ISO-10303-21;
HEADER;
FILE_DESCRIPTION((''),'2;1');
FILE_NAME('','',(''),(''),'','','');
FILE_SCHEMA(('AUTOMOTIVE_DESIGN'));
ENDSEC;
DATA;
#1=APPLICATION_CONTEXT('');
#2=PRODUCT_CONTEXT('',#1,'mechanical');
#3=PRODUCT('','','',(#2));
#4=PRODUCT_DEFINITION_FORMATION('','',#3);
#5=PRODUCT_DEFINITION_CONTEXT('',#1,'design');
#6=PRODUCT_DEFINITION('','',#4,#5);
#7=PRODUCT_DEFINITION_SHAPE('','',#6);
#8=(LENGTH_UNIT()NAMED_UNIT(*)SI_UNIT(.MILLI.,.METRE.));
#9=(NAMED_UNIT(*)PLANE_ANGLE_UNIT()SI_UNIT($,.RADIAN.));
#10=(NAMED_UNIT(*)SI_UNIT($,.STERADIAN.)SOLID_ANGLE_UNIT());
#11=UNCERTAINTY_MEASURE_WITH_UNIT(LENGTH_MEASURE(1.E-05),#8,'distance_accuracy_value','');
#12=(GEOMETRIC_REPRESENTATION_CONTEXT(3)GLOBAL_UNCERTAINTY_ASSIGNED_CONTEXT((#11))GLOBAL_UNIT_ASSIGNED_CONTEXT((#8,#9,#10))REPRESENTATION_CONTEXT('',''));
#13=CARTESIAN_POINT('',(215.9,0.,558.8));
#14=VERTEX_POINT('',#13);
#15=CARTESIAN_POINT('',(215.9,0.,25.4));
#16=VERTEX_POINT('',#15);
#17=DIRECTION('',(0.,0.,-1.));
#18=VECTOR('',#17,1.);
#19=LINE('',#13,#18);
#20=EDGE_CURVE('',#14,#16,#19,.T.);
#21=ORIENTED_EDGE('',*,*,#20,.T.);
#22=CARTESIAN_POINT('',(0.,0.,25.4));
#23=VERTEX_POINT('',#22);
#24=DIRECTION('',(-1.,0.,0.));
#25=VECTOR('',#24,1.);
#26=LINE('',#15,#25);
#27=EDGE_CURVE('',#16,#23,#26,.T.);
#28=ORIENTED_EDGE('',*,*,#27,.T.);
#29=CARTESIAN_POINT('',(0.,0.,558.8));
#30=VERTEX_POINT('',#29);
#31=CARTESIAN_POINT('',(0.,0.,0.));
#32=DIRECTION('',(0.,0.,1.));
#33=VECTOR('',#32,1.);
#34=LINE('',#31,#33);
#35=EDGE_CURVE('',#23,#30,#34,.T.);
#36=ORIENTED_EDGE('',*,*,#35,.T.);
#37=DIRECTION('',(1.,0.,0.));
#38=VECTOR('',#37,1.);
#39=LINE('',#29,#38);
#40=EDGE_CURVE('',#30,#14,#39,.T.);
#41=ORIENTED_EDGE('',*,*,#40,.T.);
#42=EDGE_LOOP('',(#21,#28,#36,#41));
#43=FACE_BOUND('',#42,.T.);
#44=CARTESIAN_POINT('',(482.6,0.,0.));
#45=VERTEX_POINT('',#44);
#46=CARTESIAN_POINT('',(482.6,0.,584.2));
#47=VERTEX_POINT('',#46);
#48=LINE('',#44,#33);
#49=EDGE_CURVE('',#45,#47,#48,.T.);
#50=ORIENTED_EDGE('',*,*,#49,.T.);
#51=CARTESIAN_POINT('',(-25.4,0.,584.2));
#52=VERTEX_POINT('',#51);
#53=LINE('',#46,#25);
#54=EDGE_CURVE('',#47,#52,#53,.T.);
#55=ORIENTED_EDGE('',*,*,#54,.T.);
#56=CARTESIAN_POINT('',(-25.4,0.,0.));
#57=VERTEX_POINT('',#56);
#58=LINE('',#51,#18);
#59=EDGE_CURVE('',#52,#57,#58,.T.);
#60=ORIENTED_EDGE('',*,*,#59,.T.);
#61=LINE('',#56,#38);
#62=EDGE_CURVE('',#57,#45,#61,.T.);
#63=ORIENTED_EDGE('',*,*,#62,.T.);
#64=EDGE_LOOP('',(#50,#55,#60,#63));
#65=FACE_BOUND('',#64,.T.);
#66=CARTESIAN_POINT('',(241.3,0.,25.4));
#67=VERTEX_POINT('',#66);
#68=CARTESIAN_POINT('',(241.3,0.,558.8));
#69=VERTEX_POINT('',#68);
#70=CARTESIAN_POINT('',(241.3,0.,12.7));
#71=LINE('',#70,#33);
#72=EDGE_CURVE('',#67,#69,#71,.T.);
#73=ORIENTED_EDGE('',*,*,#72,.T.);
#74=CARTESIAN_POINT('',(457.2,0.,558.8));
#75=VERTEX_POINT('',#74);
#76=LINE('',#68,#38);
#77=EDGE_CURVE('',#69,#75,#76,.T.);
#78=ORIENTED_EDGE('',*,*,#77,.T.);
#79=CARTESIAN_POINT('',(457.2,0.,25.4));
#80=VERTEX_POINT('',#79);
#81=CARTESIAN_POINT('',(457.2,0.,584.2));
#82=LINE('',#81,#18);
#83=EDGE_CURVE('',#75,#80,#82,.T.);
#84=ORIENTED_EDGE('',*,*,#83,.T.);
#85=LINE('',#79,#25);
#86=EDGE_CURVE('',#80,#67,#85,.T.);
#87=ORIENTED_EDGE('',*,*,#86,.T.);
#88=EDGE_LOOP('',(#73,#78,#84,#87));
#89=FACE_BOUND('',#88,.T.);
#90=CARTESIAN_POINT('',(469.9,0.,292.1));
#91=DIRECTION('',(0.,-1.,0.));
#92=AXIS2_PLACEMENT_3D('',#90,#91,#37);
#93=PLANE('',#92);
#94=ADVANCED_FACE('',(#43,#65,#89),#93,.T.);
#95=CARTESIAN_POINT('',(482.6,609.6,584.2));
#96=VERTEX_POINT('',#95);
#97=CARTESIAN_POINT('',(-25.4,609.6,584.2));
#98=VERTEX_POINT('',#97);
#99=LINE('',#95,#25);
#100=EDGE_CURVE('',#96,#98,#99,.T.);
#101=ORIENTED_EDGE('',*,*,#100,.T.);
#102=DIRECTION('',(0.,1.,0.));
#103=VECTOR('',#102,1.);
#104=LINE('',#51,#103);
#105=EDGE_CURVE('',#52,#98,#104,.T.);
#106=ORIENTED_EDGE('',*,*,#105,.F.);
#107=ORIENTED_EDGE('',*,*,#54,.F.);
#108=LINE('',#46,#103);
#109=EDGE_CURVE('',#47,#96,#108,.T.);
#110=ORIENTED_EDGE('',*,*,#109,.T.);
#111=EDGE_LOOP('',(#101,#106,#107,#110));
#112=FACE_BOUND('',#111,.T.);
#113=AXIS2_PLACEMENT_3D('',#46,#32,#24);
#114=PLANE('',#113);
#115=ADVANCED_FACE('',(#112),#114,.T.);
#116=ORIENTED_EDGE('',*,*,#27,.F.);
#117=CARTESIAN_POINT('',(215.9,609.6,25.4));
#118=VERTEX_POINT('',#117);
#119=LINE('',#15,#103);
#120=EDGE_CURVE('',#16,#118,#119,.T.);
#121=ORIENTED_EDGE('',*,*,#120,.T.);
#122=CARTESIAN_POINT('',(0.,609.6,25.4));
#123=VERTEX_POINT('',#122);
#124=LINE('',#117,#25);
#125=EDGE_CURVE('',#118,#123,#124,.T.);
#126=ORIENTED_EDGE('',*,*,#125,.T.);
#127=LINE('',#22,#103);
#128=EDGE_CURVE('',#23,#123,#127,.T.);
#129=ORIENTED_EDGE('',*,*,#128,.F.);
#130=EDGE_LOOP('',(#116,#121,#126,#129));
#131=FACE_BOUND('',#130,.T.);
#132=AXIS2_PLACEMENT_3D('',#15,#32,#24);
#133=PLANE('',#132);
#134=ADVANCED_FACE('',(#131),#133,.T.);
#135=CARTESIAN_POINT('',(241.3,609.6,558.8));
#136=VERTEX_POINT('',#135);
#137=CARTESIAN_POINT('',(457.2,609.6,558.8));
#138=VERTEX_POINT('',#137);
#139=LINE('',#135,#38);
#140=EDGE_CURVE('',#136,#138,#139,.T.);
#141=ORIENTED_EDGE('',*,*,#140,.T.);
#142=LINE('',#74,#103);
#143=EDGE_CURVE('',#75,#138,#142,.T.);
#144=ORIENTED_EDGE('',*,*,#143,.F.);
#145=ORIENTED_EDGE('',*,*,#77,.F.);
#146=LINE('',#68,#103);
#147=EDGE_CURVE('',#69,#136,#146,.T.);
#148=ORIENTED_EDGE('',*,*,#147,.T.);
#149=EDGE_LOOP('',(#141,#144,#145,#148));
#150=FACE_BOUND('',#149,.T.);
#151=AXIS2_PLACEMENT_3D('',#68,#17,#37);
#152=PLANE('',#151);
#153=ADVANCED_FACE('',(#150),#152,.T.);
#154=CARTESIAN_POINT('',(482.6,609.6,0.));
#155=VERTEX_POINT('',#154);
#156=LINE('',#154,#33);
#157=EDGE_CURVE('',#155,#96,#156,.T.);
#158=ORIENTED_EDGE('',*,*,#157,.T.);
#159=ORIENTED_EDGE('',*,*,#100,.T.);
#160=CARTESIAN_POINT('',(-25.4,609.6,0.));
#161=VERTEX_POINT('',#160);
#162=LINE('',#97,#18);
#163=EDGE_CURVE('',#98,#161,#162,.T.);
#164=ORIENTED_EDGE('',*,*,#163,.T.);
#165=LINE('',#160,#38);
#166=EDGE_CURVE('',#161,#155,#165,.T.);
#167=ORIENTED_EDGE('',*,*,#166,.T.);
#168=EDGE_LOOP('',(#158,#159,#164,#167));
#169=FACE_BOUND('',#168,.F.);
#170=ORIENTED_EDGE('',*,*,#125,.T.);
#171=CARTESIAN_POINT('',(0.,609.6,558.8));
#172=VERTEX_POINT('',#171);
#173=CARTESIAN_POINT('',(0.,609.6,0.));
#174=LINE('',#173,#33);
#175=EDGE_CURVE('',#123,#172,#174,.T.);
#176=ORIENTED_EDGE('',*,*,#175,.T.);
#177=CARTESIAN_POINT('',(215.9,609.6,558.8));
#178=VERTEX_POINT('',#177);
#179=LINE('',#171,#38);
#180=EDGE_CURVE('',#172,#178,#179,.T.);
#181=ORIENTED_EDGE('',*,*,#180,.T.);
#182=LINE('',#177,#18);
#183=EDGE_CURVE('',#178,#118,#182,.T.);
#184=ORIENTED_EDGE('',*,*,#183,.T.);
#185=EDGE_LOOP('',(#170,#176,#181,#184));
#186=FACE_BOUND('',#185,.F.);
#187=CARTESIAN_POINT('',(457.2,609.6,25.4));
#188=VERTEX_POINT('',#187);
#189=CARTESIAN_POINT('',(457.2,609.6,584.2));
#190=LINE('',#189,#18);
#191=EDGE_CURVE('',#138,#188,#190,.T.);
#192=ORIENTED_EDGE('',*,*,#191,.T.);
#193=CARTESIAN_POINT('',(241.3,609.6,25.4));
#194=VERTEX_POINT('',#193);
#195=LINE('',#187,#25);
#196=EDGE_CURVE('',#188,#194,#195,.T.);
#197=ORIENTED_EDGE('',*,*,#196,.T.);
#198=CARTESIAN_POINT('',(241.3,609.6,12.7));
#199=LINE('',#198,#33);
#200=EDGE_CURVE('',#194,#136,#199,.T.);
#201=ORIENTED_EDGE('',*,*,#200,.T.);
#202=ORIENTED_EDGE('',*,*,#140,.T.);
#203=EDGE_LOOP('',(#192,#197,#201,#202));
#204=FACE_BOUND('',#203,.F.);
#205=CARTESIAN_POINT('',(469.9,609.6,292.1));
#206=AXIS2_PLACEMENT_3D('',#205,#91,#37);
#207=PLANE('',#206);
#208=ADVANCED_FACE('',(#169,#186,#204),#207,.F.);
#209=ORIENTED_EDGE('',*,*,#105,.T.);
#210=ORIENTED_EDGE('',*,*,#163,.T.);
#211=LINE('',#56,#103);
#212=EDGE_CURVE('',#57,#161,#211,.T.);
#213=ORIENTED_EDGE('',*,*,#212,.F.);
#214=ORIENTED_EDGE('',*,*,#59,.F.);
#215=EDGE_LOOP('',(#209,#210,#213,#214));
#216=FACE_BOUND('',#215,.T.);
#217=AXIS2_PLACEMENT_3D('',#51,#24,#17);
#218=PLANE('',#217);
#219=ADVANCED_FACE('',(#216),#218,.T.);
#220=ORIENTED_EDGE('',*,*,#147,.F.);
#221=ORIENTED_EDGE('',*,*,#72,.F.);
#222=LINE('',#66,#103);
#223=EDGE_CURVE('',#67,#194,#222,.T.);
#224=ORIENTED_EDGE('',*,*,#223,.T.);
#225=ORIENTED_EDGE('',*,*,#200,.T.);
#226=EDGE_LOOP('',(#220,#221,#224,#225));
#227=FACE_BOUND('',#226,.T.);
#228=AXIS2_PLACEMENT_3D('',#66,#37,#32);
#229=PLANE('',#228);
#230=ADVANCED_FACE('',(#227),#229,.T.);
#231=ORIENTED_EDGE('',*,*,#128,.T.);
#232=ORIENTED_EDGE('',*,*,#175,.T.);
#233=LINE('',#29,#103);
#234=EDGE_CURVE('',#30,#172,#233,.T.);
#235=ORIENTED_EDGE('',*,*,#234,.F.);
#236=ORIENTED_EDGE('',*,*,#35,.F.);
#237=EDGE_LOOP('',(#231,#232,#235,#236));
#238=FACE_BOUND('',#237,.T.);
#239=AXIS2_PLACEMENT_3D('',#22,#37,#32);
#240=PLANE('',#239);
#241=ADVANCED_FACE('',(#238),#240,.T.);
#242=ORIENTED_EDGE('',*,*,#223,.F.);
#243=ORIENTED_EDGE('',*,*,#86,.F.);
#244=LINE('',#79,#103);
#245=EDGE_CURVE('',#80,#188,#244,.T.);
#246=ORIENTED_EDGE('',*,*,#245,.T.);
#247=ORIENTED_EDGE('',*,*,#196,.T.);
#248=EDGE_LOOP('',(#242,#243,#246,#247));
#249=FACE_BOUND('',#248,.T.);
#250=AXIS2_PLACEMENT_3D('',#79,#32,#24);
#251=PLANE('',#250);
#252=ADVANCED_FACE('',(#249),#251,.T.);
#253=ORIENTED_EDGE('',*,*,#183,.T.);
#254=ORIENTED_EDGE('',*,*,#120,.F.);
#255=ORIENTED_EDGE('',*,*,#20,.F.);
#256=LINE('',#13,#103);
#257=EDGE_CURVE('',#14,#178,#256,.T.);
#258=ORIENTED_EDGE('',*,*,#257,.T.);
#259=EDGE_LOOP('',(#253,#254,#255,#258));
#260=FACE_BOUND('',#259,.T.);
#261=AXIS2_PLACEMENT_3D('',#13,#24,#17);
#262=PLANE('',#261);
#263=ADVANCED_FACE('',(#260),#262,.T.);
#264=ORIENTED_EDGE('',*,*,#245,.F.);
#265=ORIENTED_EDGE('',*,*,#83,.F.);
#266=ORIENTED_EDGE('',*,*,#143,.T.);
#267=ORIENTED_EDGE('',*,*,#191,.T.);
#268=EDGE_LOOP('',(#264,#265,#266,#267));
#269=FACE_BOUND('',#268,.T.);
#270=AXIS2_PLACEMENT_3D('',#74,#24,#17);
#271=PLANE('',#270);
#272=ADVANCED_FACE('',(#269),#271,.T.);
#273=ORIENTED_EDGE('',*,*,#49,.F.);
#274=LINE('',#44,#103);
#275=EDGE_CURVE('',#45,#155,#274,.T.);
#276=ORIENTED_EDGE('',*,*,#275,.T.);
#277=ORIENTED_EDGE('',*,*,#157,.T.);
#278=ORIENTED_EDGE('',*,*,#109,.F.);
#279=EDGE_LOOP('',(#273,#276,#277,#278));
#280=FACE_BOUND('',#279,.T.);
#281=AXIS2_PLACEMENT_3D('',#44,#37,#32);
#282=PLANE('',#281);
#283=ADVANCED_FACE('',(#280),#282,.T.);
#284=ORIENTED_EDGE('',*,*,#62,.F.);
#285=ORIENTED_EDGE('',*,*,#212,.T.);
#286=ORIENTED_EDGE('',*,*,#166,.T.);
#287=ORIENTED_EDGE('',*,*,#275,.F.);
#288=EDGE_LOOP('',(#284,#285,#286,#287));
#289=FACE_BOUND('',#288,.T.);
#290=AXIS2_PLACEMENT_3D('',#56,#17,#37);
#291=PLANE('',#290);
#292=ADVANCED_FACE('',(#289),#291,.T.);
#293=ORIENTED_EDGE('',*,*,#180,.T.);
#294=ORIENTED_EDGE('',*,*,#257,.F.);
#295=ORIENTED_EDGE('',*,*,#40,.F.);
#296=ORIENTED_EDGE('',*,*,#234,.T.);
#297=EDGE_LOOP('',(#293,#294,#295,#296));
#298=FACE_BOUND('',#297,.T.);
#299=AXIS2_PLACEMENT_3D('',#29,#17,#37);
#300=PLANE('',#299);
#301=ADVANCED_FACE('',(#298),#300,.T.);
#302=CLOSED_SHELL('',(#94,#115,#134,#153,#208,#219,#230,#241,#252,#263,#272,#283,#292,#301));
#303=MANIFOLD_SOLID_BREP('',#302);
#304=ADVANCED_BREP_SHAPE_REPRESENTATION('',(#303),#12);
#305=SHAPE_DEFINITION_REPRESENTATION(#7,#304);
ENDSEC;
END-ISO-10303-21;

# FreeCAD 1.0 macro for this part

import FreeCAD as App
import Part
import Sketcher
Q = App.Units.Quantity

doc = App.newDocument("Part")
params = doc.addObject("Spreadsheet::Sheet", "Params")
for row, (alias, value) in enumerate([
    ("sketch1_width", "20 in"),
    ("sketch1_height", "23 in"),
    ("sketch1_height2", "21 in"),
    ("sketch1_width2", "8.5 in"),
    ("pad1_length", "24 in"),
], start=1):
    params.set(f"A{row}", alias)
    params.set(f"B{row}", "=" + value)
    params.setAlias(f"B{row}", alias)

body = doc.addObject("PartDesign::Body", "Body")

# Sketch on XZ plane
sketch1 = doc.addObject("Sketcher::SketchObject", "Sketch")
body.addObject(sketch1)
sketch1.AttachmentSupport = (doc.XZ_Plane, [""])
sketch1.MapMode = "FlatFace"
sketch1.addGeometry([
    Part.LineSegment(App.Vector(483, 0, 0), App.Vector(483, 584, 0)),  # 0
    Part.LineSegment(App.Vector(483, 584, 0), App.Vector(-25, 584, 0)),  # 1
    Part.LineSegment(App.Vector(-25, 584, 0), App.Vector(-25, 0, 0)),  # 2
    Part.LineSegment(App.Vector(-25, 0, 0), App.Vector(483, 0, 0)),  # 3
    Part.LineSegment(App.Vector(0, 25, 0), App.Vector(0, 559, 0)),  # 4
    Part.LineSegment(App.Vector(0, 559, 0), App.Vector(216, 559, 0)),  # 5
    Part.LineSegment(App.Vector(216, 559, 0), App.Vector(216, 25, 0)),  # 6
    Part.LineSegment(App.Vector(216, 25, 0), App.Vector(0, 25, 0)),  # 7
    Part.LineSegment(App.Vector(241, 25, 0), App.Vector(241, 559, 0)),  # 8
    Part.LineSegment(App.Vector(241, 559, 0), App.Vector(457, 559, 0)),  # 9
    Part.LineSegment(App.Vector(457, 559, 0), App.Vector(457, 25, 0)),  # 10
    Part.LineSegment(App.Vector(457, 25, 0), App.Vector(241, 25, 0)),  # 11
], False)
sketch1.addConstraint([
    Sketcher.Constraint("Coincident", 0, 2, 1, 1),
    Sketcher.Constraint("Coincident", 1, 2, 2, 1),
    Sketcher.Constraint("Coincident", 2, 2, 3, 1),
    Sketcher.Constraint("Coincident", 3, 2, 0, 1),
    Sketcher.Constraint("Coincident", 4, 2, 5, 1),
    Sketcher.Constraint("Coincident", 5, 2, 6, 1),
    Sketcher.Constraint("Coincident", 6, 2, 7, 1),
    Sketcher.Constraint("Coincident", 7, 2, 4, 1),
    Sketcher.Constraint("Coincident", 8, 2, 9, 1),
    Sketcher.Constraint("Coincident", 9, 2, 10, 1),
    Sketcher.Constraint("Coincident", 10, 2, 11, 1),
    Sketcher.Constraint("Coincident", 11, 2, 8, 1),
    Sketcher.Constraint("Vertical", 0),
    Sketcher.Constraint("Horizontal", 1),
    Sketcher.Constraint("Vertical", 2),
    Sketcher.Constraint("Horizontal", 3),
    Sketcher.Constraint("Vertical", 4),
    Sketcher.Constraint("Horizontal", 5),
    Sketcher.Constraint("Vertical", 6),
    Sketcher.Constraint("Horizontal", 7),
    Sketcher.Constraint("Vertical", 8),
    Sketcher.Constraint("Horizontal", 9),
    Sketcher.Constraint("Vertical", 10),
    Sketcher.Constraint("Horizontal", 11),
    Sketcher.Constraint("PointOnObject", 2, 2, -1),
    Sketcher.Constraint("PointOnObject", 4, 2, -2),
    Sketcher.Constraint("Horizontal", 5, 2, 8, 2),
    Sketcher.Constraint("Horizontal", 7, 2, 10, 2),
    Sketcher.Constraint("Equal", 7, 9),
    Sketcher.Constraint("DistanceX", 1, 2, 1, 1, Q("20 in")),
    Sketcher.Constraint("DistanceY", 0, 1, 0, 2, Q("23 in")),
    Sketcher.Constraint("DistanceY", 4, 1, 4, 2, Q("21 in")),
    Sketcher.Constraint("DistanceX", 5, 1, 5, 2, Q("8.5 in")),
    Sketcher.Constraint("DistanceX", -1, 1, 0, 2, Q("19 in")),
    Sketcher.Constraint("DistanceY", -1, 1, 4, 2, Q("22 in")),
    Sketcher.Constraint("DistanceX", -1, 1, 9, 2, Q("18 in")),
])
sketch1.setExpression("Constraints[29]", "Params.sketch1_width")
sketch1.setExpression("Constraints[30]", "Params.sketch1_height")
sketch1.setExpression("Constraints[31]", "Params.sketch1_height2")
sketch1.setExpression("Constraints[32]", "Params.sketch1_width2")
pad1 = doc.addObject("PartDesign::Pad", "Pad")
body.addObject(pad1)
pad1.Profile = sketch1
pad1.setExpression("Length", "Params.pad1_length")
pad1.Reversed = True

doc.recompute()
